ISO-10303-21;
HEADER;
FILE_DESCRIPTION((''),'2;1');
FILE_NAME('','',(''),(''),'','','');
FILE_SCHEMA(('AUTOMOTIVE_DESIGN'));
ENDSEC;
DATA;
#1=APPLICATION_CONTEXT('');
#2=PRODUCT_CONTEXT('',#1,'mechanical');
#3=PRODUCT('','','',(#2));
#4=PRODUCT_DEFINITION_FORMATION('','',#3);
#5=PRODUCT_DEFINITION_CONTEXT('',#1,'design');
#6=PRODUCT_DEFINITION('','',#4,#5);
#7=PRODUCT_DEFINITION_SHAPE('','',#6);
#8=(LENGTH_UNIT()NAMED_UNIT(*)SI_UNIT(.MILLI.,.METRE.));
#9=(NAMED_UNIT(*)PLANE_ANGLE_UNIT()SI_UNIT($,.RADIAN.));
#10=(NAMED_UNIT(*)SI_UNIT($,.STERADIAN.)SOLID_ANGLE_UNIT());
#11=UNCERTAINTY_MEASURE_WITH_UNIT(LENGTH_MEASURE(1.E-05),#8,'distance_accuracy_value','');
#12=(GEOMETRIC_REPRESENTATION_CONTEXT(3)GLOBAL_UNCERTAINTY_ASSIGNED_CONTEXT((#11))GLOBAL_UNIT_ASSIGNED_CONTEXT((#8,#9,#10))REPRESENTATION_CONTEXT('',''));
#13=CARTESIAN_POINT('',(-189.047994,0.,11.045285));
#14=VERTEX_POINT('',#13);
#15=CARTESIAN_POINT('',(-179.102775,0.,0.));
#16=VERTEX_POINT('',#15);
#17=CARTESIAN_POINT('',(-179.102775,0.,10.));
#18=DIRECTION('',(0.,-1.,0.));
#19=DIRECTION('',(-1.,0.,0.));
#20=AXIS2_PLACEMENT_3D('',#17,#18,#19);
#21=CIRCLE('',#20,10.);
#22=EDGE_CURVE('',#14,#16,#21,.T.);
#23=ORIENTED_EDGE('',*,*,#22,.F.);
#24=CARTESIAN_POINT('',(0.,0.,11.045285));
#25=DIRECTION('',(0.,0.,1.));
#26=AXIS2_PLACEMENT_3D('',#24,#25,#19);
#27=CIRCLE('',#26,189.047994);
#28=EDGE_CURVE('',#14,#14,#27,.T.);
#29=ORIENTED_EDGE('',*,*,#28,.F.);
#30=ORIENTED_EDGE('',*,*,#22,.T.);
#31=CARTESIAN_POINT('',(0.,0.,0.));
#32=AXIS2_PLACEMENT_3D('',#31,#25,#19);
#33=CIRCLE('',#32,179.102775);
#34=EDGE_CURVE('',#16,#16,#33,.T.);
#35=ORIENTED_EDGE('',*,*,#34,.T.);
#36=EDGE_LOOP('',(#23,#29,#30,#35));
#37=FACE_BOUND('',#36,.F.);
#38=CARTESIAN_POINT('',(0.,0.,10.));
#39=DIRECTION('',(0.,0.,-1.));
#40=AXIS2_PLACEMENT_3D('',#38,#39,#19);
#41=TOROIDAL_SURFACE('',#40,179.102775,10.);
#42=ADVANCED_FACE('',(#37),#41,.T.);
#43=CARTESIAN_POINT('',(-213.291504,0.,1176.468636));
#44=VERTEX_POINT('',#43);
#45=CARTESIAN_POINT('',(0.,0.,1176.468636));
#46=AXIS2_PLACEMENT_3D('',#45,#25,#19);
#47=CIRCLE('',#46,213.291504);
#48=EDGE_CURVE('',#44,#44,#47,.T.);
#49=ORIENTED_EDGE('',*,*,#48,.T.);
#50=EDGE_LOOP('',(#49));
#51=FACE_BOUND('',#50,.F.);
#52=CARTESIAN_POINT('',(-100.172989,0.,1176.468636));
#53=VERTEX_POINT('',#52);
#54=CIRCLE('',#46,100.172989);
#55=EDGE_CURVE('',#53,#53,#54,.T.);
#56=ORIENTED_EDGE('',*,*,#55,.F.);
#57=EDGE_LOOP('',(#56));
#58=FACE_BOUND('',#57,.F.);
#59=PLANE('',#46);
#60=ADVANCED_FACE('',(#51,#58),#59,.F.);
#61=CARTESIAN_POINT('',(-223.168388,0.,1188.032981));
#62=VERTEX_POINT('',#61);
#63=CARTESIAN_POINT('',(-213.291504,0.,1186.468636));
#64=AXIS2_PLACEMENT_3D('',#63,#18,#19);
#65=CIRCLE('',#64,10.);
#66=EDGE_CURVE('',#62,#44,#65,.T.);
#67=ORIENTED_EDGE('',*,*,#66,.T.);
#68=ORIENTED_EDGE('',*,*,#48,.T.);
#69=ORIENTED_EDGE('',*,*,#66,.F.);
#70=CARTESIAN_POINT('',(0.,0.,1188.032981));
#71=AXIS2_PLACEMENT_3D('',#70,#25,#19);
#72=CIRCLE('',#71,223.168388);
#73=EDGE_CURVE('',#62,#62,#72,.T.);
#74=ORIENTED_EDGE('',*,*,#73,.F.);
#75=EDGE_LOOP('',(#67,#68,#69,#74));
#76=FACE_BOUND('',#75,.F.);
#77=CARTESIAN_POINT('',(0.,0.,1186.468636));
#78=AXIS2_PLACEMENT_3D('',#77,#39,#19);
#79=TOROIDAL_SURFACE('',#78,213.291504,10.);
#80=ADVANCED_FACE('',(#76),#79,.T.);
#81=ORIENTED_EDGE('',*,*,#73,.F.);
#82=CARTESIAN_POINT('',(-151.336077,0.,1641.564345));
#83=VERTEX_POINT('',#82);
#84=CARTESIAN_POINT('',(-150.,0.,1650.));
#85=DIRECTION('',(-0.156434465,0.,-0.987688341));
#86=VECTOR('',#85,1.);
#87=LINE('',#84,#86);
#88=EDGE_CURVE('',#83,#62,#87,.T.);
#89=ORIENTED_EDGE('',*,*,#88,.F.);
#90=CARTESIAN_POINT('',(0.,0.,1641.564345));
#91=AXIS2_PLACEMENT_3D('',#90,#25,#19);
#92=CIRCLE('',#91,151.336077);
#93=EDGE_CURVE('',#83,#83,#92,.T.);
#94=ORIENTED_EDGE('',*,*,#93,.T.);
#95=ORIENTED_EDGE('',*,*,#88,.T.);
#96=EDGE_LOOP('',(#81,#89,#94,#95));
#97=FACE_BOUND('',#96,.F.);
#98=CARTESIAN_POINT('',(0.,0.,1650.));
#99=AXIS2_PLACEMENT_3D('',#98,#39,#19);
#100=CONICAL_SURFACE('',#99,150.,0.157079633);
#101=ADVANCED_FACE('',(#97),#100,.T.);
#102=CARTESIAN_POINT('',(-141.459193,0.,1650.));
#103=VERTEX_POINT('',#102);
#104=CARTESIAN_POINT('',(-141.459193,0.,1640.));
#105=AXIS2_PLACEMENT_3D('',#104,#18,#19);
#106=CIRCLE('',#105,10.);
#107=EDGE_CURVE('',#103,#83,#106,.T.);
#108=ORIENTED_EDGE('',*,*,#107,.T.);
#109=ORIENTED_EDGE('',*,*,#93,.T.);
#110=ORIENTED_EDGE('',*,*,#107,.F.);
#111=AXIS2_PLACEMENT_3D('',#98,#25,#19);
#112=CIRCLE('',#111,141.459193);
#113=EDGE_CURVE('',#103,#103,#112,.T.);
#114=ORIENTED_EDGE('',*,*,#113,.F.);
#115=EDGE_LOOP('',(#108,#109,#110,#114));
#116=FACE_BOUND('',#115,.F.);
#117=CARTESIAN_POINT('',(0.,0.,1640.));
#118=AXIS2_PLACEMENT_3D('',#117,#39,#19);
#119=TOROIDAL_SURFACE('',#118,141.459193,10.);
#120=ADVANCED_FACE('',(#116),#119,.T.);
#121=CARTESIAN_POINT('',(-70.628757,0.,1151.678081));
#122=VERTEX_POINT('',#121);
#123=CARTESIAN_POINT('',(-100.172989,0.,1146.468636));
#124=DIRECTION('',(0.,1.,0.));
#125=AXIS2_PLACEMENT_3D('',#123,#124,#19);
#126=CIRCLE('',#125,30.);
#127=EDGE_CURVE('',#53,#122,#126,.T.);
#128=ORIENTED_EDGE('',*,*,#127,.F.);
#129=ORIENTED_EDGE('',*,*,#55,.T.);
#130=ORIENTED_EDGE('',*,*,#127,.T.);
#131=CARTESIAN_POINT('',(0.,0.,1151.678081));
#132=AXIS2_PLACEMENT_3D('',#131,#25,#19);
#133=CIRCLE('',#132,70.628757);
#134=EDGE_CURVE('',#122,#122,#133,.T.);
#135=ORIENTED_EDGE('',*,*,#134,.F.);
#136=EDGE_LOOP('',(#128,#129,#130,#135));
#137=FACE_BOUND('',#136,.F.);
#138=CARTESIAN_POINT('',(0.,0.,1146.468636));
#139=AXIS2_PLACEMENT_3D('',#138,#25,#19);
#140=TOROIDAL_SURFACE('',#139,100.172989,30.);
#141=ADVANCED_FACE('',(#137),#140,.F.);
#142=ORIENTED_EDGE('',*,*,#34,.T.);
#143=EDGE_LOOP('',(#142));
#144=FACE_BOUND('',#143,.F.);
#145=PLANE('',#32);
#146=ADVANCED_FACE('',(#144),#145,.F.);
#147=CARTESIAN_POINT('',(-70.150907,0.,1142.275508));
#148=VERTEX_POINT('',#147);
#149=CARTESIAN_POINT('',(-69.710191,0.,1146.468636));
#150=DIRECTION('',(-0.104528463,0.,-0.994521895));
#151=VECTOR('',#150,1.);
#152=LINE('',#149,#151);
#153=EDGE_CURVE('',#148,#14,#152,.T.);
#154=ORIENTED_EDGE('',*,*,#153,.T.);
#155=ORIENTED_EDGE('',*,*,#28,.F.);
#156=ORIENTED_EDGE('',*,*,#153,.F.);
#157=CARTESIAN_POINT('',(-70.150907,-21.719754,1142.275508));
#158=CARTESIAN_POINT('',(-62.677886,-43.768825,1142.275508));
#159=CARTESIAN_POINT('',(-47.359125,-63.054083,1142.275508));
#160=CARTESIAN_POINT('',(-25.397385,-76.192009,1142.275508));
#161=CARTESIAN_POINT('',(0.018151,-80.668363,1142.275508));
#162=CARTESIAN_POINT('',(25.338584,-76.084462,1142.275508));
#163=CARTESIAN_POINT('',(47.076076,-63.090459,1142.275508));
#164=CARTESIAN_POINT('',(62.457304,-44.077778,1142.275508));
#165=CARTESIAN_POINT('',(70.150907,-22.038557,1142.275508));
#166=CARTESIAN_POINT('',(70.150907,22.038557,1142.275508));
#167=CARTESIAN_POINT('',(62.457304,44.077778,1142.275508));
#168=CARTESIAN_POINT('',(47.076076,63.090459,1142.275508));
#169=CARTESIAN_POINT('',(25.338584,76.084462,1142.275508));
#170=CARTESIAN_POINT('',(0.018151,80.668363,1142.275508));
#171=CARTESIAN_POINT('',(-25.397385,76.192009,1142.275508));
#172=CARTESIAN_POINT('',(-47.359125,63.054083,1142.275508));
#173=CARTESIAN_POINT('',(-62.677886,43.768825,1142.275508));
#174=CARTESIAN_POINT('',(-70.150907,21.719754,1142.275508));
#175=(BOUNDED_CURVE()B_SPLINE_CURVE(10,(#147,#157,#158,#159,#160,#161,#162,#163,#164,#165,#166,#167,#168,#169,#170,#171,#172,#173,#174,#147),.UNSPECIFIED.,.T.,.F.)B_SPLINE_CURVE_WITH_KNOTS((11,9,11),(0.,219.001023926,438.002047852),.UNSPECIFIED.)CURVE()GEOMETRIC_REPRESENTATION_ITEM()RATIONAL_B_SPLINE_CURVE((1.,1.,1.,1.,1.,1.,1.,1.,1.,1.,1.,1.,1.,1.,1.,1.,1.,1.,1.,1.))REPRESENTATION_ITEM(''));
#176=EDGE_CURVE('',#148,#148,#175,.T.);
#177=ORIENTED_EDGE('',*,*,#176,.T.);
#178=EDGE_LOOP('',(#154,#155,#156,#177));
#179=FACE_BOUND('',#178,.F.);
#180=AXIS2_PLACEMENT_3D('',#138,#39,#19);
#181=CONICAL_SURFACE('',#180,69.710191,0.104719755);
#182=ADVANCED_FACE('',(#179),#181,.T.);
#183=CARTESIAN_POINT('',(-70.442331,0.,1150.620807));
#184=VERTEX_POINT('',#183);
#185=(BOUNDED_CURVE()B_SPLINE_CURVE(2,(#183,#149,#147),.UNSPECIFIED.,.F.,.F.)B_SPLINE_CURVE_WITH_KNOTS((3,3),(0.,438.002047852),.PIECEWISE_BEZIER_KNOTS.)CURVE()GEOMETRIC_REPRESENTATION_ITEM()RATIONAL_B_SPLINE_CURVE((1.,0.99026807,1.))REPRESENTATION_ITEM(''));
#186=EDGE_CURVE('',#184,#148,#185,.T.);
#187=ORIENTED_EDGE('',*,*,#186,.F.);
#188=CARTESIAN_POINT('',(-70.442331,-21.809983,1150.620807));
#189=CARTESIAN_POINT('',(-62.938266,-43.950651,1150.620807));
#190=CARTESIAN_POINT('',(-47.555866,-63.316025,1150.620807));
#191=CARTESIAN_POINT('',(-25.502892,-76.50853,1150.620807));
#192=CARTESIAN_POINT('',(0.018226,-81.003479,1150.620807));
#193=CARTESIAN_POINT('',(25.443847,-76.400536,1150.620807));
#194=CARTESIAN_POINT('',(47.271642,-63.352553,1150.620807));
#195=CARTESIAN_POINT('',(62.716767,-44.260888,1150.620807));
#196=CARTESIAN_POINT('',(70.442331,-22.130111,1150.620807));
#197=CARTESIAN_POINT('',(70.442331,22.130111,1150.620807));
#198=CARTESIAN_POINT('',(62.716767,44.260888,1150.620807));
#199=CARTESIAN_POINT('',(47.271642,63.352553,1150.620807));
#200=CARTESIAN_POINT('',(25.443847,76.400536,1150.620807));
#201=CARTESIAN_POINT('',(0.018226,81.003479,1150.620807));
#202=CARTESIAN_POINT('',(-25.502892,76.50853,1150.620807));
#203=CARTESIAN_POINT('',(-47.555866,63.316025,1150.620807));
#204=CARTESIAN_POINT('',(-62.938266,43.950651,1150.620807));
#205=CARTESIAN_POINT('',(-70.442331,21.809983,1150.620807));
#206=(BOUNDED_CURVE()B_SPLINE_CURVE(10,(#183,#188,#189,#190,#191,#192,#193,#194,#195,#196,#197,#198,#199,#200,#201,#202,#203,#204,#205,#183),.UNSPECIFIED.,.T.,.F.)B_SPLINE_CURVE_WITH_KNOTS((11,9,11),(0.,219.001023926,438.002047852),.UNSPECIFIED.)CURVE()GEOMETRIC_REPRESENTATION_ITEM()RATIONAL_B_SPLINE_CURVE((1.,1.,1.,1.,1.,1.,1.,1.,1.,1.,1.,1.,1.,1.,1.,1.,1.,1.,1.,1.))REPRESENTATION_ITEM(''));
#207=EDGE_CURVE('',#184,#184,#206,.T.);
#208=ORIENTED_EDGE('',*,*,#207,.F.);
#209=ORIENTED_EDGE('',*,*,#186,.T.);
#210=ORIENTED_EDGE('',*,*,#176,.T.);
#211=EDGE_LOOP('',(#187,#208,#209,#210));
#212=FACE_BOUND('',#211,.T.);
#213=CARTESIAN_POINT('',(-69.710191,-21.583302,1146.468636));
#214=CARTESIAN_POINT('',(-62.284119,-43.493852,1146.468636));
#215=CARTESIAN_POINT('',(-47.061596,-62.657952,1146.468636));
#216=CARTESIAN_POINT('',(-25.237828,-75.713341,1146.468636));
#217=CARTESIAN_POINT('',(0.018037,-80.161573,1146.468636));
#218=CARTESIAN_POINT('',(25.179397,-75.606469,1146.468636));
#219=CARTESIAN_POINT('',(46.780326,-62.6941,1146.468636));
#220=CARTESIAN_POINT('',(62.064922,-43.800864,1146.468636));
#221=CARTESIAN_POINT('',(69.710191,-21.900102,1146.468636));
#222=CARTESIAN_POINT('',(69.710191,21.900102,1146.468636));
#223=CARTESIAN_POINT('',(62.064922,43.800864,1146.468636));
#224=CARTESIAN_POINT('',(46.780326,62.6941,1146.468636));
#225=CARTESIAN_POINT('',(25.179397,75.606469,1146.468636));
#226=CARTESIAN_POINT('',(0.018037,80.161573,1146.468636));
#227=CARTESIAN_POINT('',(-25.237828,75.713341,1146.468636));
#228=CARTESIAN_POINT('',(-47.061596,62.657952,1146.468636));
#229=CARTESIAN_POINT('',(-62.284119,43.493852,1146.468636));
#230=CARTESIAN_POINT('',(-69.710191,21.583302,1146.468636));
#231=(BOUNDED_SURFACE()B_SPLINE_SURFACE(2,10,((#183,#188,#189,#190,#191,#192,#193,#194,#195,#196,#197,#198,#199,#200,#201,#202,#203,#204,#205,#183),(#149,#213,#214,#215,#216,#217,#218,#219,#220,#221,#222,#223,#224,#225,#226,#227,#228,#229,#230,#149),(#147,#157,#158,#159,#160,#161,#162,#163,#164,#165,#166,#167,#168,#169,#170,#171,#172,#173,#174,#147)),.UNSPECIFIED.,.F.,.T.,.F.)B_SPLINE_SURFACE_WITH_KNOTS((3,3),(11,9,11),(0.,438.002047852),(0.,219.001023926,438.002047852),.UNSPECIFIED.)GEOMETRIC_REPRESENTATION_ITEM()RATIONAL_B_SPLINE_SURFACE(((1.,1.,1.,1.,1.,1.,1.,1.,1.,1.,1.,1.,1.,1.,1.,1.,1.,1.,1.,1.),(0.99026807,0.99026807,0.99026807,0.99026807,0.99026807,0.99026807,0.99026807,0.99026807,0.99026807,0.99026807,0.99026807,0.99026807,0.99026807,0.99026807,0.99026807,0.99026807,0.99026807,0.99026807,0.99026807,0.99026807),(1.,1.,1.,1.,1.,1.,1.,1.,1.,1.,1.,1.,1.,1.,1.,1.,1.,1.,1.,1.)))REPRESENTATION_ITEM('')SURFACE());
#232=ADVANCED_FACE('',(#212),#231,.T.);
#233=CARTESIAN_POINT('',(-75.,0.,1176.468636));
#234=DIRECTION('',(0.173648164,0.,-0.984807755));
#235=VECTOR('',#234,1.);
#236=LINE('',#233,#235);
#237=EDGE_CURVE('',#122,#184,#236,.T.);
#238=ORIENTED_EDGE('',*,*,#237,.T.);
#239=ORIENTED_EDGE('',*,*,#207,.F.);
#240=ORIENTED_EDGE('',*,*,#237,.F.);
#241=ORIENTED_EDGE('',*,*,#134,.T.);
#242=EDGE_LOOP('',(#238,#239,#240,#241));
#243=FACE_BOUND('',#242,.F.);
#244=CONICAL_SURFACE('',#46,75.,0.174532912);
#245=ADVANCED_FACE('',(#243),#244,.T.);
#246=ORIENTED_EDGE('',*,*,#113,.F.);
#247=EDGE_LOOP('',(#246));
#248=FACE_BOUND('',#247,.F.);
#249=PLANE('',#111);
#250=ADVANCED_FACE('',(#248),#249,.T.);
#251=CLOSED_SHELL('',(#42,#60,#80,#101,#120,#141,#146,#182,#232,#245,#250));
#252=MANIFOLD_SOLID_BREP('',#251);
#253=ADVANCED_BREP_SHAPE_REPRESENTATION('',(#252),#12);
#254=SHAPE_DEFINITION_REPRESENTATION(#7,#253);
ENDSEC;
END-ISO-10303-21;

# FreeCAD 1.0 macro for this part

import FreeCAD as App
import Part
import Sketcher
from FreeCAD import Vector
Q = App.Units.Quantity


def edges_at(feature, points):
    """Names of the edges that pass closest to the given points."""
    edges = feature.Shape.Edges
    near = lambda p: min(range(len(edges)), key=lambda i: edges[i].distToShape(Part.Vertex(*p))[0])
    return sorted({f"Edge{near(p) + 1}" for p in points})


def add_polygon(sketch, points):
    """Adds a closed chain of lines whose ends are joined by coincident constraints."""
    first, n = sketch.GeometryCount, len(points)
    for a, b in zip(points, points[1:] + points[:1]):
        sketch.addGeometry(Part.LineSegment(App.Vector(*a, 0), App.Vector(*b, 0)), False)
    for i in range(n):
        sketch.addConstraint(Sketcher.Constraint("Coincident", first + i, 2, first + (i + 1) % n, 1))

doc = App.newDocument("Part")
body = doc.addObject("PartDesign::Body", "Body")

# Sketch on XZ plane
sketch1 = body.newObject("Sketcher::SketchObject", "Sketch")
sketch1.AttachmentSupport = (doc.getObject("XZ_Plane"), [""])
sketch1.MapMode = "FlatFace"
add_polygon(sketch1, [(0, 1650), (-150, 1650), (-225, 1176.468636), (-75, 1176.468636), (-69.710191, 1146.468636), (-190.2089, 0), (0, 0)])  # lines 0-6
sketch1.addConstraint(Sketcher.Constraint("Horizontal", 0))
sketch1.addConstraint(Sketcher.Constraint("Horizontal", 2))
sketch1.addConstraint(Sketcher.Constraint("Horizontal", 5))
sketch1.addConstraint(Sketcher.Constraint("Vertical", 6))
sketch1.addConstraint(Sketcher.Constraint("Coincident", 5, 2, -1, 1))
sketch1.addConstraint(Sketcher.Constraint("Equal", 0, 2))
sketch1.addConstraint(Sketcher.Constraint("DistanceX", 0, 2, 0, 1, 150.0))
sketch1.addConstraint(Sketcher.Constraint("DistanceY", 6, 1, 6, 2, 1650.0))
sketch1.addConstraint(Sketcher.Constraint("Angle", 1, Q("-99 deg")))
sketch1.addConstraint(Sketcher.Constraint("Angle", 3, Q("-80.000001 deg")))
sketch1.addConstraint(Sketcher.Constraint("Angle", 4, Q("-96 deg")))
sketch1.addConstraint(Sketcher.Constraint("DistanceX", 1, 2, -1, 1, 225.0))
sketch1.addConstraint(Sketcher.Constraint("DistanceY", 3, 2, 2, 2, 30.0))
revolution = body.newObject("PartDesign::Revolution", "Revolution")
revolution.Profile = sketch1
revolution.ReferenceAxis = (sketch1, ["V_Axis"])
revolution.Angle = 360
doc.recompute()

fillet = body.newObject("PartDesign::Fillet", "Fillet")
fillet.Base = (revolution, edges_at(revolution, [(150, 0, 1650), (225, 0, 1176.469), (190.209, 0, 0)]))
fillet.Radius = 10
doc.recompute()

fillet2 = body.newObject("PartDesign::Fillet", "Fillet001")
fillet2.Base = (fillet, edges_at(fillet, [(75, 0, 1176.469), (69.71, 0, 1146.469)]))
fillet2.Radius = 30

doc.recompute()
